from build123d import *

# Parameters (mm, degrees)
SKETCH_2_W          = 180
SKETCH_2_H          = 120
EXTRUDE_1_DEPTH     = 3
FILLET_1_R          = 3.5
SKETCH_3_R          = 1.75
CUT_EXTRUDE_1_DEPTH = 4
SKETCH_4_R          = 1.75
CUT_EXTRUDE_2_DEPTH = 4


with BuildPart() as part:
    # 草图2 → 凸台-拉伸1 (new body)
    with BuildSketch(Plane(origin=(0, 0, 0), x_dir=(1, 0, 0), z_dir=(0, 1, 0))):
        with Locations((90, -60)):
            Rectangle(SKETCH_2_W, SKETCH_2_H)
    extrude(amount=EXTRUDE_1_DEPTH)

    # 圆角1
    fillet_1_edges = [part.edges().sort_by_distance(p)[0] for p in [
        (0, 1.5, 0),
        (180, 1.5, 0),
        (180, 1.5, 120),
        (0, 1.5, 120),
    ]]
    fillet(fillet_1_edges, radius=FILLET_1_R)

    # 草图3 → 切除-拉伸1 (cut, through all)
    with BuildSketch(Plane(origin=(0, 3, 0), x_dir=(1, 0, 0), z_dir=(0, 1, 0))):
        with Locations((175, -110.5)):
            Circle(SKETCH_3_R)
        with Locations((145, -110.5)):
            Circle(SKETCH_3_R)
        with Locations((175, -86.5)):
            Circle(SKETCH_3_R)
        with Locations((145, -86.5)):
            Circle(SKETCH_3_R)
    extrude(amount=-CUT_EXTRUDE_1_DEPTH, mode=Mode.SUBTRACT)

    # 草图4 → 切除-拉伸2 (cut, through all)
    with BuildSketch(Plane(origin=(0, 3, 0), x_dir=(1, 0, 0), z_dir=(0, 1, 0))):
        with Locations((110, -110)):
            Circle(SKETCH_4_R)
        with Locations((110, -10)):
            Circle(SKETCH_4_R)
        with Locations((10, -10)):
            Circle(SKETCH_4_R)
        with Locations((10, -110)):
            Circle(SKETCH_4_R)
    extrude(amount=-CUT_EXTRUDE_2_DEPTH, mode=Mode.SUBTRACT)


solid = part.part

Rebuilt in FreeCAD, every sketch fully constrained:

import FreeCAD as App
import Part
import Sketcher


def edges_at(feature, points):
    """Names of the edges that pass closest to the given points."""
    edges = feature.Shape.Edges
    near = lambda p: min(range(len(edges)), key=lambda i: edges[i].distToShape(Part.Vertex(*p))[0])
    return sorted({f"Edge{near(p) + 1}" for p in points})

doc = App.newDocument("Part")
params = doc.addObject("Spreadsheet::Sheet", "Params")
for row, (alias, value) in enumerate([
    ("sketch1_width", "180 mm"),
    ("sketch1_height", "120 mm"),
    ("pad1_length", "3 mm"),
    ("fillet_radius", "3.5 mm"),
    ("sketch2_diameter", "3.5 mm"),
    ("sketch3_diameter", "3.5 mm"),
], start=1):
    params.set(f"A{row}", alias)
    params.set(f"B{row}", "=" + value)
    params.setAlias(f"B{row}", alias)

body = doc.addObject("PartDesign::Body", "Body")

# Sketch on XZ plane
sketch1 = body.newObject("Sketcher::SketchObject", "Sketch")
sketch1.AttachmentSupport = (doc.getObject("XZ_Plane"), [""])
sketch1.MapMode = "FlatFace"
sketch1.addGeometry([
    Part.LineSegment(App.Vector(0, 0, 0), App.Vector(0, 120, 0)),
    Part.LineSegment(App.Vector(0, 120, 0), App.Vector(180, 120, 0)),
    Part.LineSegment(App.Vector(180, 120, 0), App.Vector(180, 0, 0)),
    Part.LineSegment(App.Vector(180, 0, 0), App.Vector(0, 0, 0)),
], False)
sketch1.addConstraint([
    Sketcher.Constraint("Coincident", 0, 2, 1, 1),
    Sketcher.Constraint("Coincident", 1, 2, 2, 1),
    Sketcher.Constraint("Coincident", 2, 2, 3, 1),
    Sketcher.Constraint("Coincident", 3, 2, 0, 1),
    Sketcher.Constraint("Vertical", 0),
    Sketcher.Constraint("Horizontal", 1),
    Sketcher.Constraint("Vertical", 2),
    Sketcher.Constraint("Horizontal", 3),
    Sketcher.Constraint("Coincident", 3, 2, -1, 1),
    Sketcher.Constraint("DistanceX", 1, 1, 1, 2, 180.0),
    Sketcher.Constraint("DistanceY", 0, 1, 0, 2, 120.0),
])
sketch1.setExpression("Constraints[9]", "Params.sketch1_width")
sketch1.setExpression("Constraints[10]", "Params.sketch1_height")
pad1 = body.newObject("PartDesign::Pad", "Pad")
pad1.Profile = sketch1
pad1.setExpression("Length", "Params.pad1_length")
pad1.Reversed = True
doc.recompute()

fillet = body.newObject("PartDesign::Fillet", "Fillet")
fillet.Base = (pad1, edges_at(pad1, [
    (0, 1.5, 0),
    (180, 1.5, 0),
    (180, 1.5, 120),
    (0, 1.5, 120),
]))
fillet.setExpression("Radius", "Params.fillet_radius")

# Sketch on XZ plane
sketch2 = body.newObject("Sketcher::SketchObject", "Sketch001")
sketch2.AttachmentSupport = (doc.getObject("XZ_Plane"), [""])
sketch2.MapMode = "FlatFace"
sketch2.AttachmentOffset = App.Placement(App.Vector(0, 0, -3), App.Rotation())
sketch2.addGeometry([
    Part.Circle(App.Vector(175, 110.5, 0), App.Vector(0, 0, 1), 1.75),
    Part.Circle(App.Vector(145, 110.5, 0), App.Vector(0, 0, 1), 1.75),
    Part.Circle(App.Vector(175, 86.5, 0), App.Vector(0, 0, 1), 1.75),
    Part.Circle(App.Vector(145, 86.5, 0), App.Vector(0, 0, 1), 1.75),
], False)
sketch2.addConstraint([
    Sketcher.Constraint("Equal", 0, 1),
    Sketcher.Constraint("Equal", 1, 2),
    Sketcher.Constraint("Equal", 2, 3),
    Sketcher.Constraint("Horizontal", 0, 3, 1, 3),
    Sketcher.Constraint("Horizontal", 2, 3, 3, 3),
    Sketcher.Constraint("Vertical", 0, 3, 2, 3),
    Sketcher.Constraint("Vertical", 1, 3, 3, 3),
    Sketcher.Constraint("Diameter", 0, 3.5),
    Sketcher.Constraint("DistanceX", -1, 1, 0, 3, 175.0),
    Sketcher.Constraint("DistanceX", -1, 1, 1, 3, 145.0),
    Sketcher.Constraint("DistanceY", 2, 3, 0, 3, 24.0),
    Sketcher.Constraint("DistanceY", -1, 1, 0, 3, 110.5),
])
sketch2.setExpression("Constraints[7]", "Params.sketch2_diameter")
pocket1 = body.newObject("PartDesign::Pocket", "Pocket")
pocket1.Profile = sketch2
pocket1.Type = "ThroughAll"
pocket1.Reversed = True

# Sketch on XZ plane
sketch3 = body.newObject("Sketcher::SketchObject", "Sketch002")
sketch3.AttachmentSupport = (doc.getObject("XZ_Plane"), [""])
sketch3.MapMode = "FlatFace"
sketch3.AttachmentOffset = App.Placement(App.Vector(0, 0, -3), App.Rotation())
sketch3.addGeometry([
    Part.Circle(App.Vector(110, 110, 0), App.Vector(0, 0, 1), 1.75),
    Part.Circle(App.Vector(110, 10, 0), App.Vector(0, 0, 1), 1.75),
    Part.Circle(App.Vector(10, 10, 0), App.Vector(0, 0, 1), 1.75),
    Part.Circle(App.Vector(10, 110, 0), App.Vector(0, 0, 1), 1.75),
], False)
sketch3.addConstraint([
    Sketcher.Constraint("Equal", 0, 1),
    Sketcher.Constraint("Equal", 1, 2),
    Sketcher.Constraint("Equal", 2, 3),
    Sketcher.Constraint("Horizontal", 1, 3, 2, 3),
    Sketcher.Constraint("Horizontal", 0, 3, 3, 3),
    Sketcher.Constraint("Vertical", 0, 3, 1, 3),
    Sketcher.Constraint("Vertical", 2, 3, 3, 3),
    Sketcher.Constraint("Diameter", 0, 3.5),
    Sketcher.Constraint("DistanceX", -1, 1, 0, 3, 110.0),
    Sketcher.Constraint("DistanceY", -1, 1, 0, 3, 110.0),
    Sketcher.Constraint("DistanceY", -1, 1, 1, 3, 10.0),
    Sketcher.Constraint("DistanceX", -1, 1, 2, 3, 10.0),
])
sketch3.setExpression("Constraints[7]", "Params.sketch3_diameter")
pocket2 = body.newObject("PartDesign::Pocket", "Pocket001")
pocket2.Profile = sketch3
pocket2.Type = "ThroughAll"
pocket2.Reversed = True

doc.recompute()
